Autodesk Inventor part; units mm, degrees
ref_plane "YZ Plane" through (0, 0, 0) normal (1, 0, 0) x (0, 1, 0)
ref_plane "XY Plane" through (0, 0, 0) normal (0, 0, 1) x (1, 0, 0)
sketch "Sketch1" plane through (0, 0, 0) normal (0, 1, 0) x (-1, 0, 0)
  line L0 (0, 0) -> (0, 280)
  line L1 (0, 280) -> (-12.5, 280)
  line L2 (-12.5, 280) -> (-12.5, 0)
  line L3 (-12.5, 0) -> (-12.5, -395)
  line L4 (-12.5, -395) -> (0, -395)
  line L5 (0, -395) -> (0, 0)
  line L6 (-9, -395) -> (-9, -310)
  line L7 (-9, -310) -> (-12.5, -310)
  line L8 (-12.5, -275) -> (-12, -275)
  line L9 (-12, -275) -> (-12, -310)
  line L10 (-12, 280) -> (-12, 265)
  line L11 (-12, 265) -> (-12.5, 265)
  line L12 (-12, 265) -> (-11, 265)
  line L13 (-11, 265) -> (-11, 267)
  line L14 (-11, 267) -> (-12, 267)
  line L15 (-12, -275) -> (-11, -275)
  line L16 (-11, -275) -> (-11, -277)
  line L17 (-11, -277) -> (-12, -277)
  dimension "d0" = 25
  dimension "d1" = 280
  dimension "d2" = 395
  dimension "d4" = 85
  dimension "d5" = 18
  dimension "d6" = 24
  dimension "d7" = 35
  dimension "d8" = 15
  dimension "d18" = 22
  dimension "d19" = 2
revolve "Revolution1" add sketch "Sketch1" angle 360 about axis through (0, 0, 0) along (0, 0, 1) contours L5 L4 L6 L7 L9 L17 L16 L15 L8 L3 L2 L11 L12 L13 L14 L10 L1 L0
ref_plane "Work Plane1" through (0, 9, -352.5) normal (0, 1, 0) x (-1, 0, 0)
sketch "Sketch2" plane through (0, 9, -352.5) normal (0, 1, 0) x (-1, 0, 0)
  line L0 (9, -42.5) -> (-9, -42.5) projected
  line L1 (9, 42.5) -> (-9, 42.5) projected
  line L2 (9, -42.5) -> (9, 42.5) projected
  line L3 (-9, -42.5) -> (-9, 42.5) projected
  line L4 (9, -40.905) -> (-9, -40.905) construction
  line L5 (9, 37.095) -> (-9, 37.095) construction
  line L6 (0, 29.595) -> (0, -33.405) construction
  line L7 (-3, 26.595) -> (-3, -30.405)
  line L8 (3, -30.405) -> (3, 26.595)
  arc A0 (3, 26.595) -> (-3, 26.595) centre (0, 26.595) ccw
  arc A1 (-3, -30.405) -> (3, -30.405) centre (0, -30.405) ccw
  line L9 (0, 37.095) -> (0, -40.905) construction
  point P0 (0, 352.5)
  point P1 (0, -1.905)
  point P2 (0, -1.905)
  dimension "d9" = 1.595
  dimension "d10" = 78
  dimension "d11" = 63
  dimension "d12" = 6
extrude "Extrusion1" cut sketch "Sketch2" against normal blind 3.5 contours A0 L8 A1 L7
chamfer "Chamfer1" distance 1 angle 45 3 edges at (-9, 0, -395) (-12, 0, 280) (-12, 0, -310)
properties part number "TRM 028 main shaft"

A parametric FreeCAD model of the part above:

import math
import FreeCAD as App
import Part
import Sketcher
from FreeCAD import Vector
Q = App.Units.Quantity


def edges_at(feature, points):
    """Names of the edges that pass closest to the given points."""
    edges = feature.Shape.Edges
    near = lambda p: min(range(len(edges)), key=lambda i: edges[i].distToShape(Part.Vertex(*p))[0])
    return sorted({f"Edge{near(p) + 1}" for p in points})

doc = App.newDocument("Part")
params = doc.addObject("Spreadsheet::Sheet", "Params")
for row, (alias, value) in enumerate([
    ("sketch1_height", "2 mm"),
    ("sketch1_height2", "85 mm"),
    ("sketch1_width", "12 mm"),
    ("sketch1_width2", "1 mm"),
    ("sketch1_width3", "1.5 mm"),
    ("revolution_angle", "360 deg"),
    ("sketch2_radius", "3 mm"),
    ("sketch2_height", "57 mm"),
    ("pocket1_length", "3.5 mm"),
    ("chamfer_size", "1 mm"),
], start=1):
    params.set(f"A{row}", alias)
    params.set(f"B{row}", "=" + value)
    params.setAlias(f"B{row}", alias)

body = doc.addObject("PartDesign::Body", "Body")

sketch1 = body.newObject("Sketcher::SketchObject", "Sketch")
sketch1.AttachmentSupport = (doc.getObject("XZ_Plane"), [""])
sketch1.MapMode = "FlatFace"
sketch1.addGeometry(Part.LineSegment(Vector(0, -395, 0), Vector(0, 280, 0)), False)
sketch1.addGeometry(Part.LineSegment(Vector(0, 280, 0), Vector(12, 280, 0)), False)
sketch1.addGeometry(Part.LineSegment(Vector(12, 280, 0), Vector(12, 267, 0)), False)
sketch1.addGeometry(Part.LineSegment(Vector(12, 267, 0), Vector(11, 267, 0)), False)
sketch1.addGeometry(Part.LineSegment(Vector(11, 267, 0), Vector(11, 265, 0)), False)
sketch1.addGeometry(Part.LineSegment(Vector(11, 265, 0), Vector(12.5, 265, 0)), False)
sketch1.addGeometry(Part.LineSegment(Vector(12.5, 265, 0), Vector(12.5, -275, 0)), False)
sketch1.addGeometry(Part.LineSegment(Vector(12.5, -275, 0), Vector(11, -275, 0)), False)
sketch1.addGeometry(Part.LineSegment(Vector(11, -275, 0), Vector(11, -277, 0)), False)
sketch1.addGeometry(Part.LineSegment(Vector(11, -277, 0), Vector(12, -277, 0)), False)
sketch1.addGeometry(Part.LineSegment(Vector(12, -277, 0), Vector(12, -310, 0)), False)
sketch1.addGeometry(Part.LineSegment(Vector(12, -310, 0), Vector(9, -310, 0)), False)
sketch1.addGeometry(Part.LineSegment(Vector(9, -310, 0), Vector(9, -395, 0)), False)
sketch1.addGeometry(Part.LineSegment(Vector(9, -395, 0), Vector(0, -395, 0)), False)
sketch1.addConstraint(Sketcher.Constraint("Coincident", 0, 2, 1, 1))
sketch1.addConstraint(Sketcher.Constraint("Coincident", 1, 2, 2, 1))
sketch1.addConstraint(Sketcher.Constraint("Coincident", 2, 2, 3, 1))
sketch1.addConstraint(Sketcher.Constraint("Coincident", 3, 2, 4, 1))
sketch1.addConstraint(Sketcher.Constraint("Coincident", 4, 2, 5, 1))
sketch1.addConstraint(Sketcher.Constraint("Coincident", 5, 2, 6, 1))
sketch1.addConstraint(Sketcher.Constraint("Coincident", 6, 2, 7, 1))
sketch1.addConstraint(Sketcher.Constraint("Coincident", 7, 2, 8, 1))
sketch1.addConstraint(Sketcher.Constraint("Coincident", 8, 2, 9, 1))
sketch1.addConstraint(Sketcher.Constraint("Coincident", 9, 2, 10, 1))
sketch1.addConstraint(Sketcher.Constraint("Coincident", 10, 2, 11, 1))
sketch1.addConstraint(Sketcher.Constraint("Coincident", 11, 2, 12, 1))
sketch1.addConstraint(Sketcher.Constraint("Coincident", 12, 2, 13, 1))
sketch1.addConstraint(Sketcher.Constraint("Coincident", 13, 2, 0, 1))
sketch1.addConstraint(Sketcher.Constraint("Vertical", 0))
sketch1.addConstraint(Sketcher.Constraint("Horizontal", 1))
sketch1.addConstraint(Sketcher.Constraint("Vertical", 2))
sketch1.addConstraint(Sketcher.Constraint("Horizontal", 3))
sketch1.addConstraint(Sketcher.Constraint("Vertical", 4))
sketch1.addConstraint(Sketcher.Constraint("Horizontal", 5))
sketch1.addConstraint(Sketcher.Constraint("Vertical", 6))
sketch1.addConstraint(Sketcher.Constraint("Horizontal", 7))
sketch1.addConstraint(Sketcher.Constraint("Vertical", 8))
sketch1.addConstraint(Sketcher.Constraint("Horizontal", 9))
sketch1.addConstraint(Sketcher.Constraint("Vertical", 10))
sketch1.addConstraint(Sketcher.Constraint("Horizontal", 11))
sketch1.addConstraint(Sketcher.Constraint("Vertical", 12))
sketch1.addConstraint(Sketcher.Constraint("Horizontal", 13))
sketch1.addConstraint(Sketcher.Constraint("PointOnObject", 0, 2, -2))
sketch1.addConstraint(Sketcher.Constraint("Vertical", 4, 2, 7, 2))
sketch1.addConstraint(Sketcher.Constraint("Vertical", 2, 2, 9, 2))
sketch1.addConstraint(Sketcher.Constraint("Equal", 4, 8))
sketch1.addConstraint(Sketcher.Constraint("DistanceY", 4, 2, 4, 1, Q("2 mm")))
sketch1.addConstraint(Sketcher.Constraint("DistanceY", 12, 2, 12, 1, Q("85 mm")))
sketch1.addConstraint(Sketcher.Constraint("DistanceY", -1, 1, 0, 2, Q("280 mm")))
sketch1.addConstraint(Sketcher.Constraint("DistanceY", 12, 2, -1, 1, Q("395 mm")))
sketch1.addConstraint(Sketcher.Constraint("DistanceY", 4, 2, 1, 2, Q("15 mm")))
sketch1.addConstraint(Sketcher.Constraint("DistanceY", 10, 2, 6, 2, Q("35 mm")))
sketch1.addConstraint(Sketcher.Constraint("DistanceX", 11, 2, 8, 2, Q("2 mm")))
sketch1.addConstraint(Sketcher.Constraint("DistanceX", 1, 1, 1, 2, Q("12 mm")))
sketch1.addConstraint(Sketcher.Constraint("DistanceX", 3, 2, 3, 1, Q("1 mm")))
sketch1.addConstraint(Sketcher.Constraint("DistanceX", 5, 1, 5, 2, Q("1.5 mm")))
sketch1.setExpression("Constraints[32]", "Params.sketch1_height")
sketch1.setExpression("Constraints[33]", "Params.sketch1_height2")
sketch1.setExpression("Constraints[39]", "Params.sketch1_width")
sketch1.setExpression("Constraints[40]", "Params.sketch1_width2")
sketch1.setExpression("Constraints[41]", "Params.sketch1_width3")
revolution = body.newObject("PartDesign::Revolution", "Revolution")
revolution.Profile = sketch1
revolution.ReferenceAxis = (sketch1, ["V_Axis"])
revolution.setExpression("Angle", "Params.revolution_angle")

sketch2 = body.newObject("Sketcher::SketchObject", "Sketch001")
sketch2.AttachmentSupport = (doc.getObject("XZ_Plane"), [""])
sketch2.MapMode = "FlatFace"
sketch2.AttachmentOffset = App.Placement(Vector(0, 0, -9), App.Rotation())
sketch2.addGeometry(Part.ArcOfCircle(Part.Circle(Vector(0, -325.9, 0), Vector(0, 0, 1), 3), math.radians(0), math.radians(180)), False)
sketch2.addGeometry(Part.LineSegment(Vector(3, -325.9, 0), Vector(3, -382.9, 0)), False)
sketch2.addGeometry(Part.ArcOfCircle(Part.Circle(Vector(0, -382.9, 0), Vector(0, 0, 1), 3), math.radians(180), math.radians(360)), False)
sketch2.addGeometry(Part.LineSegment(Vector(-3, -382.9, 0), Vector(-3, -325.9, 0)), False)
sketch2.addConstraint(Sketcher.Constraint("Tangent", 0, 1, 1, 1))
sketch2.addConstraint(Sketcher.Constraint("Tangent", 1, 2, 2, 2))
sketch2.addConstraint(Sketcher.Constraint("Tangent", 2, 1, 3, 1))
sketch2.addConstraint(Sketcher.Constraint("Tangent", 3, 2, 0, 2))
sketch2.addConstraint(Sketcher.Constraint("Vertical", 1))
sketch2.addConstraint(Sketcher.Constraint("Vertical", 3))
sketch2.addConstraint(Sketcher.Constraint("PointOnObject", 0, 3, -2))
sketch2.addConstraint(Sketcher.Constraint("Radius", 0, Q("3 mm")))
sketch2.addConstraint(Sketcher.Constraint("DistanceY", 1, 2, 1, 1, Q("57 mm")))
sketch2.addConstraint(Sketcher.Constraint("DistanceY", 0, 3, -1, 1, Q("325.905 mm")))
sketch2.setExpression("Constraints[7]", "Params.sketch2_radius")
sketch2.setExpression("Constraints[8]", "Params.sketch2_height")
pocket1 = body.newObject("PartDesign::Pocket", "Pocket")
pocket1.Profile = sketch2
pocket1.setExpression("Length", "Params.pocket1_length")
pocket1.Reversed = True
doc.recompute()

chamfer = body.newObject("PartDesign::Chamfer", "Chamfer")
chamfer.Base = (pocket1, edges_at(pocket1, [(-9, 0, -395), (-12, 0, 280), (-12, 0, -310)]))
chamfer.setExpression("Size", "Params.chamfer_size")

doc.recompute()
